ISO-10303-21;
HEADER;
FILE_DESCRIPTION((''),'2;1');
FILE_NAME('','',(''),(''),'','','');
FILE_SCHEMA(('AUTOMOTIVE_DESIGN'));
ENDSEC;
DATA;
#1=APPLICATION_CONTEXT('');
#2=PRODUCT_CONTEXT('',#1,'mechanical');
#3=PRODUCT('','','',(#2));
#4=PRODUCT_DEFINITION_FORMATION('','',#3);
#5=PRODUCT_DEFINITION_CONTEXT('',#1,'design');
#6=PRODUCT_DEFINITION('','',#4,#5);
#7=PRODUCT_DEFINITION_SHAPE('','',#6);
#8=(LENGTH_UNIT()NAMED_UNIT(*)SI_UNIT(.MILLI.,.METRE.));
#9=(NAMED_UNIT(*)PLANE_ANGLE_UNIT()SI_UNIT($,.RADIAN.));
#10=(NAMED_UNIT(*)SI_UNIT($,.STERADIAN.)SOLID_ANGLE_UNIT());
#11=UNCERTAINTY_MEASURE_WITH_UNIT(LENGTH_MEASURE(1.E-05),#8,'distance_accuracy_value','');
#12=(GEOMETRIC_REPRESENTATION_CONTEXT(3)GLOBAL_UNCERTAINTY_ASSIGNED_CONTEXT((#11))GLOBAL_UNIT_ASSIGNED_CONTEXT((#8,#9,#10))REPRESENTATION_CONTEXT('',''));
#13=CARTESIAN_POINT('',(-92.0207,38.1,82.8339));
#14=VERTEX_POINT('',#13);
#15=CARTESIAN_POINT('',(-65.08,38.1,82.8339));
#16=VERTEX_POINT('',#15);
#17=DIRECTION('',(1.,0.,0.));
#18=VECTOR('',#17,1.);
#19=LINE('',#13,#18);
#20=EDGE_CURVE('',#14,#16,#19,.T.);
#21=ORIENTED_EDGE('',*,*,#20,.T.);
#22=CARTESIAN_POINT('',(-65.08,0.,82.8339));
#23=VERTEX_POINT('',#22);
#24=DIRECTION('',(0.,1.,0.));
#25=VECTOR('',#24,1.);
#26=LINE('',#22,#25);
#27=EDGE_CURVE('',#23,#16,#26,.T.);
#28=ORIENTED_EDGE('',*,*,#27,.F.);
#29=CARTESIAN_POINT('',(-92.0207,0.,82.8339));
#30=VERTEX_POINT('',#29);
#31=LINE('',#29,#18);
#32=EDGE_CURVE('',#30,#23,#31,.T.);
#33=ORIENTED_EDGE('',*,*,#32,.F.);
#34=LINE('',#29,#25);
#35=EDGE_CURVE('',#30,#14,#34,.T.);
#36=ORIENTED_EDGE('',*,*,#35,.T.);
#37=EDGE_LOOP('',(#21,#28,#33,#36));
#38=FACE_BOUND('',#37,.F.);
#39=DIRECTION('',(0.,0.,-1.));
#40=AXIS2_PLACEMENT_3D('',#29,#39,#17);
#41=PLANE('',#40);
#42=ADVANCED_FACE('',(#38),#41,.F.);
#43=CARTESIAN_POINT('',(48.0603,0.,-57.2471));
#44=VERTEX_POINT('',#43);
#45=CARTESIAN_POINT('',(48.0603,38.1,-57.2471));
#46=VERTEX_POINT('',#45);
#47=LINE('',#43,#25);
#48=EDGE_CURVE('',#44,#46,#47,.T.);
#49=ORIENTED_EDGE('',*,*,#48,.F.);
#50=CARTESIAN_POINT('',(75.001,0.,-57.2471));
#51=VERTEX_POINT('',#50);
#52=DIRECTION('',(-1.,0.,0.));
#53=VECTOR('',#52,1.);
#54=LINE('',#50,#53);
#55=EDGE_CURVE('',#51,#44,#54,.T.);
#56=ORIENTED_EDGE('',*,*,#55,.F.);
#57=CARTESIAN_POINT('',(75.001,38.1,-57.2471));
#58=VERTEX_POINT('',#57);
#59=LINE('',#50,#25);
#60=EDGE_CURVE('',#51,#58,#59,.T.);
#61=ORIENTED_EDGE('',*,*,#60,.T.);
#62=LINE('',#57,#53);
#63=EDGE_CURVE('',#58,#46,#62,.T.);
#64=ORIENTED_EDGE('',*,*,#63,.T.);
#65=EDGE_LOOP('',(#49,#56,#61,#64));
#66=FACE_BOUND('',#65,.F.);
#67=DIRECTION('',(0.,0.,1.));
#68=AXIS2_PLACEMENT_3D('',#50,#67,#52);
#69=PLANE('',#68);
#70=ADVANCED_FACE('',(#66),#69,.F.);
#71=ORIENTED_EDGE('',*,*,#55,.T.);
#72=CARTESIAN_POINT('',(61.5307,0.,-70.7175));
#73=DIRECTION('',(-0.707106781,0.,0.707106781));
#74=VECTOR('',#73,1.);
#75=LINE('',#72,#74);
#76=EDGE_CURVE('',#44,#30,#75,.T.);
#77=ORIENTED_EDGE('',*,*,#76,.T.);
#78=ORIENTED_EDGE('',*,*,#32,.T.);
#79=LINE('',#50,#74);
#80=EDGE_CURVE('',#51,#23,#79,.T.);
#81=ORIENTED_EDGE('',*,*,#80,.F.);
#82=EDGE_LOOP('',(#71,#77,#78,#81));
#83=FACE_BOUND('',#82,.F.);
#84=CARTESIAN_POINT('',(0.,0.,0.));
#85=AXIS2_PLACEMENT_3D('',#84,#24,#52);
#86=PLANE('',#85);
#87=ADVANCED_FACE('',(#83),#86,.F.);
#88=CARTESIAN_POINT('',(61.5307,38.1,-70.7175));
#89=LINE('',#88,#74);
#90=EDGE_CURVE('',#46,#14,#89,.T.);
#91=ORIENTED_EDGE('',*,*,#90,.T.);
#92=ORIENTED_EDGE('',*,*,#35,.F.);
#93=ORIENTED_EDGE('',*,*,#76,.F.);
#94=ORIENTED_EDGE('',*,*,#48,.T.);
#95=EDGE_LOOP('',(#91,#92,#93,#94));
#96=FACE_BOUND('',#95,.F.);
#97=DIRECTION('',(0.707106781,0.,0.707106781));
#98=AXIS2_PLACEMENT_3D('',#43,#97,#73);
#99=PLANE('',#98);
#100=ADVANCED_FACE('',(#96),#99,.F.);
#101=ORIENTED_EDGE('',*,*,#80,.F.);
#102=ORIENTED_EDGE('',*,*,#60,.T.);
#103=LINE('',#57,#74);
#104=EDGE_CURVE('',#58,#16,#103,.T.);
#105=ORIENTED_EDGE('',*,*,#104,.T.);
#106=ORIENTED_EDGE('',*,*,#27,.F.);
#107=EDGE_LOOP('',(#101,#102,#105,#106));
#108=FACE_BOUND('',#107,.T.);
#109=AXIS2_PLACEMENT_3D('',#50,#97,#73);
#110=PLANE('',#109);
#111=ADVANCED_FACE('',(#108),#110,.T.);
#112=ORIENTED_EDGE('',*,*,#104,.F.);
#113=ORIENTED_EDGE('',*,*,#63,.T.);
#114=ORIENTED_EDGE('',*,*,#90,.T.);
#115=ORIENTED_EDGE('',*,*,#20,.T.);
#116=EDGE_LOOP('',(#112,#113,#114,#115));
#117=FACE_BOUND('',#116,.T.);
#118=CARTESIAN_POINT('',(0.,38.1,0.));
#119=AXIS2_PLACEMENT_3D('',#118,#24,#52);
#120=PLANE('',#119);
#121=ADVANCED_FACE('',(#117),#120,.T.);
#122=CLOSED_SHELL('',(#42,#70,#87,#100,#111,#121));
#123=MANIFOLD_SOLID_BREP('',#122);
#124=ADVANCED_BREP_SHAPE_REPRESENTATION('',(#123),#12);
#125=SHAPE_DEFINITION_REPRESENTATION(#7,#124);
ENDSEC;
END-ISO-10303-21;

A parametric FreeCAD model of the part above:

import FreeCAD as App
import Part
import Sketcher
Q = App.Units.Quantity

doc = App.newDocument("Part")
body = doc.addObject("PartDesign::Body", "Body")

sketch1 = body.newObject("Sketcher::SketchObject", "Sketch")
sketch1.AttachmentSupport = (doc.getObject("XZ_Plane"), [""])
sketch1.MapMode = "FlatFace"
sketch1.addGeometry(Part.LineSegment(App.Vector(-65, 83, 0), App.Vector(75, -57, 0)), False)
sketch1.addGeometry(Part.LineSegment(App.Vector(75, -57, 0), App.Vector(48, -57, 0)), False)
sketch1.addGeometry(Part.LineSegment(App.Vector(48, -57, 0), App.Vector(-92, 83, 0)), False)
sketch1.addGeometry(Part.LineSegment(App.Vector(-92, 83, 0), App.Vector(-65, 83, 0)), False)
sketch1.addConstraint(Sketcher.Constraint("Coincident", 0, 2, 1, 1))
sketch1.addConstraint(Sketcher.Constraint("Coincident", 1, 2, 2, 1))
sketch1.addConstraint(Sketcher.Constraint("Coincident", 2, 2, 3, 1))
sketch1.addConstraint(Sketcher.Constraint("Coincident", 3, 2, 0, 1))
sketch1.addConstraint(Sketcher.Constraint("Horizontal", 1))
sketch1.addConstraint(Sketcher.Constraint("Horizontal", 3))
sketch1.addConstraint(Sketcher.Constraint("Parallel", 0, 2))
sketch1.addConstraint(Sketcher.Constraint("Angle", 0, Q("-45 deg")))
sketch1.addConstraint(Sketcher.Constraint("DistanceX", 2, 2, 1, 2, Q("5.515 in")))
sketch1.addConstraint(Sketcher.Constraint("DistanceX", 1, 2, 1, 1, 26.9407))
sketch1.addConstraint(Sketcher.Constraint("DistanceX", -1, 1, 0, 2, Q("2.9528 in")))
sketch1.addConstraint(Sketcher.Constraint("DistanceY", 0, 2, -1, 1, 57.247))
pad1 = body.newObject("PartDesign::Pad", "Pad")
pad1.Profile = sketch1
pad1.Length = Q("1.5 in")
pad1.Reversed = True

doc.recompute()
